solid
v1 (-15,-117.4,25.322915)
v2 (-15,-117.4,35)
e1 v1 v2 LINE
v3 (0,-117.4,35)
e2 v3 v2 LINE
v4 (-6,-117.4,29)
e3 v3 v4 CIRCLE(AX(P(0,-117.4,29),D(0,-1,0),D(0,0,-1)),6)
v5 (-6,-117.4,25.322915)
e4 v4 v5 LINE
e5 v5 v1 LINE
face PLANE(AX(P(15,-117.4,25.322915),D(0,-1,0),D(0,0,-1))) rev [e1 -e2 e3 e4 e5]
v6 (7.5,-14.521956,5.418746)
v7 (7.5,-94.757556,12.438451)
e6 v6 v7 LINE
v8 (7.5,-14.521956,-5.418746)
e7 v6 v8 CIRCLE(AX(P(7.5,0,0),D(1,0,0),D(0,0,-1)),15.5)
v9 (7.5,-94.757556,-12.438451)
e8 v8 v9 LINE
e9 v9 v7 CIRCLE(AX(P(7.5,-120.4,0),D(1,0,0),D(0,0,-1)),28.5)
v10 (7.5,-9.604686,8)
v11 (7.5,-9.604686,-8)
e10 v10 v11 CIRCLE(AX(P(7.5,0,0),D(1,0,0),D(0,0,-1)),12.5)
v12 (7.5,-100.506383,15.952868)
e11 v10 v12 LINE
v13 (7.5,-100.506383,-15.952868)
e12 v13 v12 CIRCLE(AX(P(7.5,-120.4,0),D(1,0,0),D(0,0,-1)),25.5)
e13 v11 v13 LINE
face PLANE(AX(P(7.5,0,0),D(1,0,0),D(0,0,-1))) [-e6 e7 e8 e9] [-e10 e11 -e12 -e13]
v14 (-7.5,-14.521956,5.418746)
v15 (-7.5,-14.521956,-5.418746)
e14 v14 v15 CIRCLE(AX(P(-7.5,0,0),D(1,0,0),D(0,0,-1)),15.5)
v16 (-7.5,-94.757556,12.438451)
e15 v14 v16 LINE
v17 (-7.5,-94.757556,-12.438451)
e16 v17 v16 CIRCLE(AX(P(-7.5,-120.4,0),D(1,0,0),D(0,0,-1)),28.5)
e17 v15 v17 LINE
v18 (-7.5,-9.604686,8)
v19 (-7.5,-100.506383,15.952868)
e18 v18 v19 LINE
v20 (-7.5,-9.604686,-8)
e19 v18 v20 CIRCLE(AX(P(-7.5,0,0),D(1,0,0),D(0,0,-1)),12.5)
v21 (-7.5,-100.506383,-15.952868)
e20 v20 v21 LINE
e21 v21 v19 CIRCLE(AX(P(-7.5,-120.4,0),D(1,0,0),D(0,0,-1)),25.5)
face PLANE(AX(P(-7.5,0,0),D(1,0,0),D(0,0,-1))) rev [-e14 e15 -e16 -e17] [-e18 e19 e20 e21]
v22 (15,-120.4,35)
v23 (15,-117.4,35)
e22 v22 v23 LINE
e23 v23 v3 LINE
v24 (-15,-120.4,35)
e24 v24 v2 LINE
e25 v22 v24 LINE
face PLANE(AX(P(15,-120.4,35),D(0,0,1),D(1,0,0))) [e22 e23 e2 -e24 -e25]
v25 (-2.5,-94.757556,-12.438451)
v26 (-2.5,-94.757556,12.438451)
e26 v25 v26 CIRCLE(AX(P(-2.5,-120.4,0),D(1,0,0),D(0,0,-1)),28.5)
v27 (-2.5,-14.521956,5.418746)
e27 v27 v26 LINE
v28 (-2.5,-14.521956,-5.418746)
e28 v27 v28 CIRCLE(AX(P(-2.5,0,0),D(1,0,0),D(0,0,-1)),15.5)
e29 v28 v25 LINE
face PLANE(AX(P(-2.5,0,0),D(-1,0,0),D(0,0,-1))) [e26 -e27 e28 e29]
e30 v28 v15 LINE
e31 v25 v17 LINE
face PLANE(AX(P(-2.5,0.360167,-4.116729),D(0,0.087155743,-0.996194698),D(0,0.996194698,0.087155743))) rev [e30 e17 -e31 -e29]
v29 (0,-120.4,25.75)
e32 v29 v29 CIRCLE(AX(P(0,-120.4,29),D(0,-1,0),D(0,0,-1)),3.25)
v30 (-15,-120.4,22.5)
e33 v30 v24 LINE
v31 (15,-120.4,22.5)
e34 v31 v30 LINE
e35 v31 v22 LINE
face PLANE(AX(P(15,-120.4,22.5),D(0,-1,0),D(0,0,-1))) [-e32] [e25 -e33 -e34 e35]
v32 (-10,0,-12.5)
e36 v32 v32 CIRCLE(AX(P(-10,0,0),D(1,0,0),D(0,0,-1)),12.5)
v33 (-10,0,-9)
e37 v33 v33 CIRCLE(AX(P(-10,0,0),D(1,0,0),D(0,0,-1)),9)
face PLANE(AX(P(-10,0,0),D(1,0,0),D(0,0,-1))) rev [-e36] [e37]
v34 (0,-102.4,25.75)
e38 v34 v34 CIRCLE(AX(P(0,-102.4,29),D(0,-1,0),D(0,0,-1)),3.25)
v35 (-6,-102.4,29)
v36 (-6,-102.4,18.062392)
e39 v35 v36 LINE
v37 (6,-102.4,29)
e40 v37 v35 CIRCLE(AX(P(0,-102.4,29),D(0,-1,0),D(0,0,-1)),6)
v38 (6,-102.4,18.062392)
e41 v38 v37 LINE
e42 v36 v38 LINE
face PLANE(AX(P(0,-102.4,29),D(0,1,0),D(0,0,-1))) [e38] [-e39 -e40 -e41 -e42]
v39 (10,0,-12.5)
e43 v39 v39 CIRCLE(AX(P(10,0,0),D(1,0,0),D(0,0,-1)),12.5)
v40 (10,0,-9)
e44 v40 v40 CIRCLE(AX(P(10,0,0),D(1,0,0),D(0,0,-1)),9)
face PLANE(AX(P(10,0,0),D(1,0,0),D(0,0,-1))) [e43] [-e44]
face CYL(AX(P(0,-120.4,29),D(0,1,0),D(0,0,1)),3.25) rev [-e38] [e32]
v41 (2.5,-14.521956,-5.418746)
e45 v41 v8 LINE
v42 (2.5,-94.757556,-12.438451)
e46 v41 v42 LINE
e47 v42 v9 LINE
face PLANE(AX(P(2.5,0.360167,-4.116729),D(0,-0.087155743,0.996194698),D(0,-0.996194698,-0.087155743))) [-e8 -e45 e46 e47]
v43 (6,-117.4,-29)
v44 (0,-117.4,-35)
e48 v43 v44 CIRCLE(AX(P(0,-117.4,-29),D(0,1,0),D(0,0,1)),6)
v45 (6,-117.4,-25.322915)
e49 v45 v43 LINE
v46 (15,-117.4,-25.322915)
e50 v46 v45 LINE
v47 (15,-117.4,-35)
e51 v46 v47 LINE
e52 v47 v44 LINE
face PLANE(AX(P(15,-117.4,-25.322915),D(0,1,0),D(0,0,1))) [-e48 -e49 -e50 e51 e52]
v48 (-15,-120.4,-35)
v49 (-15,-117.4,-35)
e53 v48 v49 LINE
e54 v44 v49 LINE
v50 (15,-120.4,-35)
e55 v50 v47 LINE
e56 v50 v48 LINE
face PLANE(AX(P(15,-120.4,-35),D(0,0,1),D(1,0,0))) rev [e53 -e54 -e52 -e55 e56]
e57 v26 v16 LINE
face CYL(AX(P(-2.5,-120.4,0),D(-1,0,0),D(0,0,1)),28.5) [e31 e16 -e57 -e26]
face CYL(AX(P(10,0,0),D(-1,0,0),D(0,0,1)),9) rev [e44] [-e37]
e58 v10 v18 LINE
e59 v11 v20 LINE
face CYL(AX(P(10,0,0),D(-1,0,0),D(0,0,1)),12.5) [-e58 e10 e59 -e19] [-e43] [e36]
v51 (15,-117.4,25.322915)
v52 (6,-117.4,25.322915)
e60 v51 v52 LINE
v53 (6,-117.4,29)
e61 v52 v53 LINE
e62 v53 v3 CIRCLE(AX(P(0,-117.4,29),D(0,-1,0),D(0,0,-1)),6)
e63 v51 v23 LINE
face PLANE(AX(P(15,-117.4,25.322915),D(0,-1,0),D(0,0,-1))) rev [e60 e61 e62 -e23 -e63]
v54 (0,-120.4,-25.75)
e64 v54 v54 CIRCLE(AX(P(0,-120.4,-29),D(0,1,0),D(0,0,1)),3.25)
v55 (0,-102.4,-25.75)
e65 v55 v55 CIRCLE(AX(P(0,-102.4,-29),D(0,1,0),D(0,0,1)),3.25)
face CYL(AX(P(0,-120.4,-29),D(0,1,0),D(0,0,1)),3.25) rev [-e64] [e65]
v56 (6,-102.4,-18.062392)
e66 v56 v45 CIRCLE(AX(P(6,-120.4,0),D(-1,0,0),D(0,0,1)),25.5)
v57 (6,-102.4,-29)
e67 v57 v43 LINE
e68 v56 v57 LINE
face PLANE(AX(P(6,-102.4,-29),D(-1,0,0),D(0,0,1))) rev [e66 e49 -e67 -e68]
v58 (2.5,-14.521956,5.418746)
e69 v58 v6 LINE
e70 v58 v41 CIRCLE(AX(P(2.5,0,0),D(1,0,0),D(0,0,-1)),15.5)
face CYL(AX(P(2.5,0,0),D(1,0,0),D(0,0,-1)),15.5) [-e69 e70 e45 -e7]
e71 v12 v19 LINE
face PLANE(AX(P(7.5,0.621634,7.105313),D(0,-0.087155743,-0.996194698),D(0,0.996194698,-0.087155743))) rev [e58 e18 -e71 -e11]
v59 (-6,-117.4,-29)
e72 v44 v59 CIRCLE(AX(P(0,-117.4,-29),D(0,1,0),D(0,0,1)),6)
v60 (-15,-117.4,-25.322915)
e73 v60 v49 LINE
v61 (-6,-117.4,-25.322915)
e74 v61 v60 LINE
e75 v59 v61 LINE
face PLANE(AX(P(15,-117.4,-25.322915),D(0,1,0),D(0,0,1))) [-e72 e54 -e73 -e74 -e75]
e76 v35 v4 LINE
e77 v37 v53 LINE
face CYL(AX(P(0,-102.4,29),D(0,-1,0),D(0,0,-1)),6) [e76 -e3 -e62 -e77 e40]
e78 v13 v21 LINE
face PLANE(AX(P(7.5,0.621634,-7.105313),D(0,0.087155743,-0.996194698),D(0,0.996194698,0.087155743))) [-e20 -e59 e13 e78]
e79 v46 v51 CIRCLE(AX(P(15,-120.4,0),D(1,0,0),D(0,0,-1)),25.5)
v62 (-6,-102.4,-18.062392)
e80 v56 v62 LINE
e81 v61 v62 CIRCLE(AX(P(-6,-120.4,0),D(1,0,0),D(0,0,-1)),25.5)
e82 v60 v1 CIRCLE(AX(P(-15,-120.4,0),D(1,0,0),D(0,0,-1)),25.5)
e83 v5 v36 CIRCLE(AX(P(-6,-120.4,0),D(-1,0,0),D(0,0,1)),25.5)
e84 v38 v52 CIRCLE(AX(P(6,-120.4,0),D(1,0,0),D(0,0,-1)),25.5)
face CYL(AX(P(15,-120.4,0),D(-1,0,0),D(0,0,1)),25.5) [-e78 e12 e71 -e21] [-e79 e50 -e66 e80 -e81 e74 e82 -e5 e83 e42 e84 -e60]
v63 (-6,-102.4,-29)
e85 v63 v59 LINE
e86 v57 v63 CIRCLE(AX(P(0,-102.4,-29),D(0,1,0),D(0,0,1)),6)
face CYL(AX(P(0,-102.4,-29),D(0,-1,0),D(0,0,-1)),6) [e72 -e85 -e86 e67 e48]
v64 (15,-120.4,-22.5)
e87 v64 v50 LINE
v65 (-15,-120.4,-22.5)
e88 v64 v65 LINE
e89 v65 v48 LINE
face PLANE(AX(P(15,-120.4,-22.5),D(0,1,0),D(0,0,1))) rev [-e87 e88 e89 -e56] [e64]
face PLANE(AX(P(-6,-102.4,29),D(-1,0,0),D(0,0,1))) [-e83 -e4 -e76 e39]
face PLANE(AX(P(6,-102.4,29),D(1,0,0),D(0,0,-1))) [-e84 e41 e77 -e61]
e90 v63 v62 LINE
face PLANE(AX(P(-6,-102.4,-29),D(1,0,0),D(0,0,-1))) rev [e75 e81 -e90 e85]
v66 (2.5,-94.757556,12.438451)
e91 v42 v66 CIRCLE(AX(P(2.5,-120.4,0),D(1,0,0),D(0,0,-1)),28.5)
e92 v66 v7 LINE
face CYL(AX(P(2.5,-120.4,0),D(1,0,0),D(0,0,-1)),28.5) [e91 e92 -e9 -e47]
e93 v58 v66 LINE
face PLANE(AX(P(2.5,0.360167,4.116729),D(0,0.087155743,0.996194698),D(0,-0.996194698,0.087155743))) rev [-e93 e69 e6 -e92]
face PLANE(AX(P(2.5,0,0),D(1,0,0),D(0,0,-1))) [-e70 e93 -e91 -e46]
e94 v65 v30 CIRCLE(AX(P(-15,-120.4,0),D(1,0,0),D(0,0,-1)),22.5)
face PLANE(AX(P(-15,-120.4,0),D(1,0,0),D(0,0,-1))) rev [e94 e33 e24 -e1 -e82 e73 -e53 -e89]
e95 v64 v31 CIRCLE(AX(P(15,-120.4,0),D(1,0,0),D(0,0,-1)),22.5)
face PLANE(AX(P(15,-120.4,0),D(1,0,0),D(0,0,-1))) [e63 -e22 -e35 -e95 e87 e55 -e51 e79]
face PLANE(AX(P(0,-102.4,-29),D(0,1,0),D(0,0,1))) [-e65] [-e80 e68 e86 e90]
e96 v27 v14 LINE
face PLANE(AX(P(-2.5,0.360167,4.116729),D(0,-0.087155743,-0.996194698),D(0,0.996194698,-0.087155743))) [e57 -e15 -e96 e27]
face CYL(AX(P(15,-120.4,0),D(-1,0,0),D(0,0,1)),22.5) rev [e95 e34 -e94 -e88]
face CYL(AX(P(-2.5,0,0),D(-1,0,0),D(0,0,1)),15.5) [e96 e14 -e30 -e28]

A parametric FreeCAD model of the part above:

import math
import FreeCAD as App
import Part
import Sketcher
Q = App.Units.Quantity

doc = App.newDocument("Part")
params = doc.addObject("Spreadsheet::Sheet", "Params")
for row, (alias, value) in enumerate([
    ("sketch1_diameter", "25 mm"),
    ("sketch1_diameter2", "18 mm"),
    ("pad1_length", "20 mm"),
    ("sketch2_radius", "25.5 mm"),
    ("sketch2_radius2", "22.5 mm"),
    ("sketch2_width", "3 mm"),
    ("sketch2_height", "12.5 mm"),
    ("pad2_length", "30 mm"),
    ("sketch3_radius", "25.5 mm"),
    ("sketch3_radius2", "12.5 mm"),
    ("pad3_length", "15 mm"),
    ("sketch4_radius", "6 mm"),
    ("pad4_length", "15 mm"),
    ("sketch5_diameter", "6.5 mm"),
    ("sketch6_diameter", "45 mm"),
    ("pocket2_length", "151 mm"),
    ("sketch7_radius", "28.5 mm"),
    ("sketch7_radius2", "15.5 mm"),
    ("pocket3_length", "5 mm"),
], start=1):
    params.set(f"A{row}", alias)
    params.set(f"B{row}", "=" + value)
    params.setAlias(f"B{row}", alias)

body = doc.addObject("PartDesign::Body", "Body")

sketch1 = body.newObject("Sketcher::SketchObject", "Sketch")
sketch1.AttachmentSupport = (doc.getObject("YZ_Plane"), [""])
sketch1.MapMode = "FlatFace"
sketch1.addGeometry([
    Part.Circle(App.Vector(0, 0, 0), App.Vector(0, 0, 1), 12.5),
    Part.Circle(App.Vector(0, 0, 0), App.Vector(0, 0, 1), 9),
], False)
sketch1.addConstraint([
    Sketcher.Constraint("Coincident", 0, 3, -1, 1),
    Sketcher.Constraint("Coincident", 1, 3, -1, 1),
    Sketcher.Constraint("Diameter", 0, Q("25 mm")),
    Sketcher.Constraint("Diameter", 1, Q("18 mm")),
])
sketch1.setExpression("Constraints[2]", "Params.sketch1_diameter")
sketch1.setExpression("Constraints[3]", "Params.sketch1_diameter2")
pad1 = body.newObject("PartDesign::Pad", "Pad")
pad1.Profile = sketch1
pad1.setExpression("Length", "Params.pad1_length")
pad1.Midplane = True
body2 = doc.addObject("PartDesign::Body", "Body001")

sketch2 = body2.newObject("Sketcher::SketchObject", "Sketch001")
sketch2.AttachmentSupport = (doc.getObject("YZ_Plane001"), [""])
sketch2.MapMode = "FlatFace"
sketch2.addGeometry([
    Part.LineSegment(App.Vector(-120.4, -22.5, 0), App.Vector(-120.4, -35, 0)),
    Part.LineSegment(App.Vector(-120.4, -35, 0), App.Vector(-117.4, -35, 0)),
    Part.LineSegment(App.Vector(-117.4, -35, 0), App.Vector(-117.4, -25.322915, 0)),
    Part.ArcOfCircle(Part.Circle(App.Vector(-120.4, 0, 0), App.Vector(0, 0, 1), 25.5), math.radians(-83.243673), math.radians(83.243673)),
    Part.LineSegment(App.Vector(-117.4, 25.322915, 0), App.Vector(-117.4, 35, 0)),
    Part.LineSegment(App.Vector(-117.4, 35, 0), App.Vector(-120.4, 35, 0)),
    Part.LineSegment(App.Vector(-120.4, 35, 0), App.Vector(-120.4, 22.5, 0)),
    Part.ArcOfCircle(Part.Circle(App.Vector(-120.4, 0, 0), App.Vector(0, 0, 1), 22.5), math.radians(-90), math.radians(90)),
], False)
sketch2.addConstraint([
    Sketcher.Constraint("Coincident", 0, 2, 1, 1),
    Sketcher.Constraint("Coincident", 1, 2, 2, 1),
    Sketcher.Constraint("Coincident", 2, 2, 3, 1),
    Sketcher.Constraint("Coincident", 3, 2, 4, 1),
    Sketcher.Constraint("Coincident", 4, 2, 5, 1),
    Sketcher.Constraint("Coincident", 5, 2, 6, 1),
    Sketcher.Constraint("Coincident", 6, 2, 7, 2),
    Sketcher.Constraint("Coincident", 7, 1, 0, 1),
    Sketcher.Constraint("Vertical", 0),
    Sketcher.Constraint("Horizontal", 1),
    Sketcher.Constraint("Vertical", 2),
    Sketcher.Constraint("Vertical", 4),
    Sketcher.Constraint("Horizontal", 5),
    Sketcher.Constraint("Vertical", 6),
    Sketcher.Constraint("Coincident", 7, 3, 3, 3),
    Sketcher.Constraint("Symmetric", 2, 2, 3, 2, -1),
    Sketcher.Constraint("Symmetric", 0, 2, 5, 2, -1),
    Sketcher.Constraint("Vertical", 7, 3, 0, 2),
    Sketcher.Constraint("Radius", 3, Q("25.5 mm")),
    Sketcher.Constraint("Radius", 7, Q("22.5 mm")),
    Sketcher.Constraint("DistanceX", 1, 1, 1, 2, Q("3 mm")),
    Sketcher.Constraint("DistanceY", 0, 2, 0, 1, Q("12.5 mm")),
    Sketcher.Constraint("DistanceX", 3, 3, -1, 1, Q("120.4 mm")),
])
sketch2.setExpression("Constraints[18]", "Params.sketch2_radius")
sketch2.setExpression("Constraints[19]", "Params.sketch2_radius2")
sketch2.setExpression("Constraints[20]", "Params.sketch2_width")
sketch2.setExpression("Constraints[21]", "Params.sketch2_height")
pad2 = body2.newObject("PartDesign::Pad", "Pad001")
pad2.Profile = sketch2
pad2.setExpression("Length", "Params.pad2_length")
pad2.Midplane = True
body.AllowCompound = True
doc.recompute()

boolean = body.newObject("PartDesign::Boolean", "Boolean")
boolean.Type = "Fuse"
boolean.addObjects([body2])

sketch3 = body.newObject("Sketcher::SketchObject", "Sketch002")
sketch3.AttachmentSupport = (doc.getObject("YZ_Plane"), [""])
sketch3.MapMode = "FlatFace"
sketch3.addGeometry([
    Part.ArcOfCircle(Part.Circle(App.Vector(-120.4, 0, 0), App.Vector(0, 0, 1), 25.5), math.radians(-38.726435), math.radians(38.726435)),
    Part.LineSegment(App.Vector(-100.506383, -15.952868, 0), App.Vector(-9.604686, -8, 0)),
    Part.ArcOfCircle(Part.Circle(App.Vector(0, 0, 0), App.Vector(0, 0, 1), 12.5), math.radians(140.208181), math.radians(219.791819)),
    Part.LineSegment(App.Vector(-9.604686, 8, 0), App.Vector(-100.506383, 15.952868, 0)),
], False)
sketch3.addConstraint([
    Sketcher.Constraint("Coincident", 0, 1, 1, 1),
    Sketcher.Constraint("Coincident", 1, 2, 2, 2),
    Sketcher.Constraint("Coincident", 2, 1, 3, 1),
    Sketcher.Constraint("Coincident", 3, 2, 0, 2),
    Sketcher.Constraint("Coincident", 2, 3, -1, 1),
    Sketcher.Constraint("Symmetric", 0, 1, 3, 2, -1),
    Sketcher.Constraint("Vertical", 1, 2, 2, 1),
    Sketcher.Constraint("Radius", 0, Q("25.5 mm")),
    Sketcher.Constraint("Radius", 2, Q("12.5 mm")),
    Sketcher.Constraint("Angle", 1, Q("5 deg")),
    Sketcher.Constraint("DistanceY", 1, 2, -1, 1, Q("8 mm")),
    Sketcher.Constraint("DistanceX", 0, 3, -1, 1, Q("120.4 mm")),
])
sketch3.setExpression("Constraints[7]", "Params.sketch3_radius")
sketch3.setExpression("Constraints[8]", "Params.sketch3_radius2")
pad3 = body.newObject("PartDesign::Pad", "Pad002")
pad3.Profile = sketch3
pad3.setExpression("Length", "Params.pad3_length")
pad3.Midplane = True

sketch4 = body.newObject("Sketcher::SketchObject", "Sketch003")
sketch4.AttachmentSupport = (doc.getObject("XZ_Plane"), [""])
sketch4.MapMode = "FlatFace"
sketch4.AttachmentOffset = App.Placement(App.Vector(0, 0, 117.4), App.Rotation())
sketch4.addGeometry([
    Part.LineSegment(App.Vector(-6, -29, 0), App.Vector(-6, -17, 0)),
    Part.LineSegment(App.Vector(-6, -17, 0), App.Vector(6, -17, 0)),
    Part.LineSegment(App.Vector(6, -17, 0), App.Vector(6, -29, 0)),
    Part.ArcOfCircle(Part.Circle(App.Vector(0, -29, 0), App.Vector(0, 0, 1), 6), math.radians(180), math.radians(360)),
], False)
sketch4.addConstraint([
    Sketcher.Constraint("Coincident", 0, 2, 1, 1),
    Sketcher.Constraint("Coincident", 1, 2, 2, 1),
    Sketcher.Constraint("Tangent", 2, 2, 3, 2),
    Sketcher.Constraint("Tangent", 3, 1, 0, 1),
    Sketcher.Constraint("Vertical", 0),
    Sketcher.Constraint("Horizontal", 1),
    Sketcher.Constraint("Vertical", 2),
    Sketcher.Constraint("PointOnObject", 3, 3, -2),
    Sketcher.Constraint("Equal", 1, 0),
    Sketcher.Constraint("Radius", 3, Q("6 mm")),
    Sketcher.Constraint("DistanceY", 3, 3, -1, 1, Q("29 mm")),
])
sketch4.setExpression("Constraints[9]", "Params.sketch4_radius")
pad4 = body.newObject("PartDesign::Pad", "Pad003")
pad4.Profile = sketch4
pad4.setExpression("Length", "Params.pad4_length")
pad4.Reversed = True

sketch5 = body.newObject("Sketcher::SketchObject", "Sketch004")
sketch5.AttachmentSupport = (doc.getObject("XZ_Plane"), [""])
sketch5.MapMode = "FlatFace"
sketch5.AttachmentOffset = App.Placement(App.Vector(0, 0, 102.4), App.Rotation())
sketch5.addGeometry(Part.Circle(App.Vector(0, -29, 0), App.Vector(0, 0, 1), 3.25), False)
sketch5.addConstraint([
    Sketcher.Constraint("PointOnObject", 0, 3, -2),
    Sketcher.Constraint("Diameter", 0, Q("6.5 mm")),
    Sketcher.Constraint("DistanceY", 0, 3, -1, 1, Q("29 mm")),
])
sketch5.setExpression("Constraints[1]", "Params.sketch5_diameter")
pocket1 = body.newObject("PartDesign::Pocket", "Pocket")
pocket1.Profile = sketch5
pocket1.Type = "ThroughAll"
pocket1.Reversed = True
doc.recompute()

mirrored = body.newObject("PartDesign::Mirrored", "Mirrored")
mirrored.Originals = [pad4, pocket1]
mirrored.MirrorPlane = (doc.getObject("XY_Plane"), [""])
body.Tip = mirrored

sketch6 = body.newObject("Sketcher::SketchObject", "Sketch005")
sketch6.AttachmentSupport = (doc.getObject("YZ_Plane"), [""])
sketch6.MapMode = "FlatFace"
sketch6.AttachmentOffset = App.Placement(App.Vector(0, 0, 15), App.Rotation())
sketch6.addGeometry(Part.Circle(App.Vector(-120.4, 0, 0), App.Vector(0, 0, 1), 22.5), False)
sketch6.addConstraint([
    Sketcher.Constraint("PointOnObject", 0, 3, -1),
    Sketcher.Constraint("Diameter", 0, Q("45 mm")),
    Sketcher.Constraint("DistanceX", 0, 3, -1, 1, Q("120.4 mm")),
])
sketch6.setExpression("Constraints[1]", "Params.sketch6_diameter")
pocket2 = body.newObject("PartDesign::Pocket", "Pocket001")
pocket2.Profile = sketch6
pocket2.setExpression("Length", "Params.pocket2_length")

sketch7 = body.newObject("Sketcher::SketchObject", "Sketch006")
sketch7.AttachmentSupport = (doc.getObject("YZ_Plane"), [""])
sketch7.MapMode = "FlatFace"
sketch7.AttachmentOffset = App.Placement(App.Vector(0, 0, 7.5), App.Rotation())
sketch7.addGeometry([
    Part.ArcOfCircle(Part.Circle(App.Vector(-120.4, 0, 0), App.Vector(0, 0, 1), 28.5), math.radians(-25.87676), math.radians(25.87676)),
    Part.LineSegment(App.Vector(-94.757556, -12.438451, 0), App.Vector(-14.521956, -5.418746, 0)),
    Part.ArcOfCircle(Part.Circle(App.Vector(0, 0, 0), App.Vector(0, 0, 1), 15.5), math.radians(159.537363), math.radians(200.462637)),
    Part.LineSegment(App.Vector(-14.521956, 5.418746, 0), App.Vector(-94.757556, 12.438451, 0)),
], False)
sketch7.addConstraint([
    Sketcher.Constraint("Coincident", 0, 1, 1, 1),
    Sketcher.Constraint("Coincident", 1, 2, 2, 2),
    Sketcher.Constraint("Coincident", 2, 1, 3, 1),
    Sketcher.Constraint("Coincident", 3, 2, 0, 2),
    Sketcher.Constraint("Coincident", 2, 3, -1, 1),
    Sketcher.Constraint("Symmetric", 0, 1, 3, 2, -1),
    Sketcher.Constraint("Vertical", 1, 2, 2, 1),
    Sketcher.Constraint("Radius", 0, Q("28.5 mm")),
    Sketcher.Constraint("Radius", 2, Q("15.5 mm")),
    Sketcher.Constraint("Angle", 1, Q("5 deg")),
    Sketcher.Constraint("DistanceX", 0, 3, -1, 1, Q("120.4 mm")),
    Sketcher.Constraint("DistanceX", 0, 1, 1, 2, Q("80.2356 mm")),
])
sketch7.setExpression("Constraints[7]", "Params.sketch7_radius")
sketch7.setExpression("Constraints[8]", "Params.sketch7_radius2")
pocket3 = body.newObject("PartDesign::Pocket", "Pocket002")
pocket3.Profile = sketch7
pocket3.setExpression("Length", "Params.pocket3_length")
doc.recompute()

mirrored2 = body.newObject("PartDesign::Mirrored", "Mirrored001")
mirrored2.Originals = [pocket3]
mirrored2.MirrorPlane = (doc.getObject("YZ_Plane"), [""])
body.Tip = mirrored2

doc.recompute()
